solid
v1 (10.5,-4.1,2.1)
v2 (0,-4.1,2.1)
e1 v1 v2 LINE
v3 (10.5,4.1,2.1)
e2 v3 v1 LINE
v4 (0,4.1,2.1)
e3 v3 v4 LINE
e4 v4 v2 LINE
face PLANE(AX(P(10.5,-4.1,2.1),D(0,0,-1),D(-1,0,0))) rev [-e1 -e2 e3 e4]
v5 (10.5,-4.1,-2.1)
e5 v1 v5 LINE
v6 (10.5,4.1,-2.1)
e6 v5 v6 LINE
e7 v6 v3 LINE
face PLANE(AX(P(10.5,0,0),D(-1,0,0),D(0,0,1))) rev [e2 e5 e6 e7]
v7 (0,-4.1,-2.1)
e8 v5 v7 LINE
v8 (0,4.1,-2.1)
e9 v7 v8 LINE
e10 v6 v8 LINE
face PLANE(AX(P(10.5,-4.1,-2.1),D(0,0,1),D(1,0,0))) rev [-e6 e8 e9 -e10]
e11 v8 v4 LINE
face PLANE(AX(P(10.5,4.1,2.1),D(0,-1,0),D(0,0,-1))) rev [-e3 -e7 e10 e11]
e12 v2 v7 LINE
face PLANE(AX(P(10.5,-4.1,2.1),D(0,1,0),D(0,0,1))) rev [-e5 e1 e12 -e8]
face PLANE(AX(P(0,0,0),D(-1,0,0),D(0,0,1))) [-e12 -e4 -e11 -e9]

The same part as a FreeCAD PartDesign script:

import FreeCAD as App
import Part
import Sketcher
from FreeCAD import Vector
Q = App.Units.Quantity

doc = App.newDocument("Part")
body = doc.addObject("PartDesign::Body", "Body")

# Sketch on YZ plane
sketch1 = body.newObject("Sketcher::SketchObject", "Sketch")
sketch1.AttachmentSupport = (doc.getObject("YZ_Plane"), [""])
sketch1.MapMode = "FlatFace"
sketch1.addGeometry([
    Part.LineSegment(Vector(4.1, 2.1, 0), Vector(-4.1, 2.1, 0)),
    Part.LineSegment(Vector(-4.1, 2.1, 0), Vector(-4.1, -2.1, 0)),
    Part.LineSegment(Vector(-4.1, -2.1, 0), Vector(4.1, -2.1, 0)),
    Part.LineSegment(Vector(4.1, -2.1, 0), Vector(4.1, 2.1, 0)),
], False)
sketch1.addConstraint([
    Sketcher.Constraint("Coincident", 0, 2, 1, 1),
    Sketcher.Constraint("Coincident", 1, 2, 2, 1),
    Sketcher.Constraint("Coincident", 2, 2, 3, 1),
    Sketcher.Constraint("Coincident", 3, 2, 0, 1),
    Sketcher.Constraint("Horizontal", 0),
    Sketcher.Constraint("Vertical", 1),
    Sketcher.Constraint("Horizontal", 2),
    Sketcher.Constraint("Vertical", 3),
    Sketcher.Constraint("Symmetric", 0, 2, 2, 2, -1, 1),
    Sketcher.Constraint("DistanceX", 0, 2, 0, 1, Q("8.2 mm")),
    Sketcher.Constraint("DistanceY", 1, 2, 1, 1, Q("4.2 mm")),
])
pad1 = body.newObject("PartDesign::Pad", "Pad")
pad1.Profile = sketch1
pad1.Length = 10.5

doc.recompute()
